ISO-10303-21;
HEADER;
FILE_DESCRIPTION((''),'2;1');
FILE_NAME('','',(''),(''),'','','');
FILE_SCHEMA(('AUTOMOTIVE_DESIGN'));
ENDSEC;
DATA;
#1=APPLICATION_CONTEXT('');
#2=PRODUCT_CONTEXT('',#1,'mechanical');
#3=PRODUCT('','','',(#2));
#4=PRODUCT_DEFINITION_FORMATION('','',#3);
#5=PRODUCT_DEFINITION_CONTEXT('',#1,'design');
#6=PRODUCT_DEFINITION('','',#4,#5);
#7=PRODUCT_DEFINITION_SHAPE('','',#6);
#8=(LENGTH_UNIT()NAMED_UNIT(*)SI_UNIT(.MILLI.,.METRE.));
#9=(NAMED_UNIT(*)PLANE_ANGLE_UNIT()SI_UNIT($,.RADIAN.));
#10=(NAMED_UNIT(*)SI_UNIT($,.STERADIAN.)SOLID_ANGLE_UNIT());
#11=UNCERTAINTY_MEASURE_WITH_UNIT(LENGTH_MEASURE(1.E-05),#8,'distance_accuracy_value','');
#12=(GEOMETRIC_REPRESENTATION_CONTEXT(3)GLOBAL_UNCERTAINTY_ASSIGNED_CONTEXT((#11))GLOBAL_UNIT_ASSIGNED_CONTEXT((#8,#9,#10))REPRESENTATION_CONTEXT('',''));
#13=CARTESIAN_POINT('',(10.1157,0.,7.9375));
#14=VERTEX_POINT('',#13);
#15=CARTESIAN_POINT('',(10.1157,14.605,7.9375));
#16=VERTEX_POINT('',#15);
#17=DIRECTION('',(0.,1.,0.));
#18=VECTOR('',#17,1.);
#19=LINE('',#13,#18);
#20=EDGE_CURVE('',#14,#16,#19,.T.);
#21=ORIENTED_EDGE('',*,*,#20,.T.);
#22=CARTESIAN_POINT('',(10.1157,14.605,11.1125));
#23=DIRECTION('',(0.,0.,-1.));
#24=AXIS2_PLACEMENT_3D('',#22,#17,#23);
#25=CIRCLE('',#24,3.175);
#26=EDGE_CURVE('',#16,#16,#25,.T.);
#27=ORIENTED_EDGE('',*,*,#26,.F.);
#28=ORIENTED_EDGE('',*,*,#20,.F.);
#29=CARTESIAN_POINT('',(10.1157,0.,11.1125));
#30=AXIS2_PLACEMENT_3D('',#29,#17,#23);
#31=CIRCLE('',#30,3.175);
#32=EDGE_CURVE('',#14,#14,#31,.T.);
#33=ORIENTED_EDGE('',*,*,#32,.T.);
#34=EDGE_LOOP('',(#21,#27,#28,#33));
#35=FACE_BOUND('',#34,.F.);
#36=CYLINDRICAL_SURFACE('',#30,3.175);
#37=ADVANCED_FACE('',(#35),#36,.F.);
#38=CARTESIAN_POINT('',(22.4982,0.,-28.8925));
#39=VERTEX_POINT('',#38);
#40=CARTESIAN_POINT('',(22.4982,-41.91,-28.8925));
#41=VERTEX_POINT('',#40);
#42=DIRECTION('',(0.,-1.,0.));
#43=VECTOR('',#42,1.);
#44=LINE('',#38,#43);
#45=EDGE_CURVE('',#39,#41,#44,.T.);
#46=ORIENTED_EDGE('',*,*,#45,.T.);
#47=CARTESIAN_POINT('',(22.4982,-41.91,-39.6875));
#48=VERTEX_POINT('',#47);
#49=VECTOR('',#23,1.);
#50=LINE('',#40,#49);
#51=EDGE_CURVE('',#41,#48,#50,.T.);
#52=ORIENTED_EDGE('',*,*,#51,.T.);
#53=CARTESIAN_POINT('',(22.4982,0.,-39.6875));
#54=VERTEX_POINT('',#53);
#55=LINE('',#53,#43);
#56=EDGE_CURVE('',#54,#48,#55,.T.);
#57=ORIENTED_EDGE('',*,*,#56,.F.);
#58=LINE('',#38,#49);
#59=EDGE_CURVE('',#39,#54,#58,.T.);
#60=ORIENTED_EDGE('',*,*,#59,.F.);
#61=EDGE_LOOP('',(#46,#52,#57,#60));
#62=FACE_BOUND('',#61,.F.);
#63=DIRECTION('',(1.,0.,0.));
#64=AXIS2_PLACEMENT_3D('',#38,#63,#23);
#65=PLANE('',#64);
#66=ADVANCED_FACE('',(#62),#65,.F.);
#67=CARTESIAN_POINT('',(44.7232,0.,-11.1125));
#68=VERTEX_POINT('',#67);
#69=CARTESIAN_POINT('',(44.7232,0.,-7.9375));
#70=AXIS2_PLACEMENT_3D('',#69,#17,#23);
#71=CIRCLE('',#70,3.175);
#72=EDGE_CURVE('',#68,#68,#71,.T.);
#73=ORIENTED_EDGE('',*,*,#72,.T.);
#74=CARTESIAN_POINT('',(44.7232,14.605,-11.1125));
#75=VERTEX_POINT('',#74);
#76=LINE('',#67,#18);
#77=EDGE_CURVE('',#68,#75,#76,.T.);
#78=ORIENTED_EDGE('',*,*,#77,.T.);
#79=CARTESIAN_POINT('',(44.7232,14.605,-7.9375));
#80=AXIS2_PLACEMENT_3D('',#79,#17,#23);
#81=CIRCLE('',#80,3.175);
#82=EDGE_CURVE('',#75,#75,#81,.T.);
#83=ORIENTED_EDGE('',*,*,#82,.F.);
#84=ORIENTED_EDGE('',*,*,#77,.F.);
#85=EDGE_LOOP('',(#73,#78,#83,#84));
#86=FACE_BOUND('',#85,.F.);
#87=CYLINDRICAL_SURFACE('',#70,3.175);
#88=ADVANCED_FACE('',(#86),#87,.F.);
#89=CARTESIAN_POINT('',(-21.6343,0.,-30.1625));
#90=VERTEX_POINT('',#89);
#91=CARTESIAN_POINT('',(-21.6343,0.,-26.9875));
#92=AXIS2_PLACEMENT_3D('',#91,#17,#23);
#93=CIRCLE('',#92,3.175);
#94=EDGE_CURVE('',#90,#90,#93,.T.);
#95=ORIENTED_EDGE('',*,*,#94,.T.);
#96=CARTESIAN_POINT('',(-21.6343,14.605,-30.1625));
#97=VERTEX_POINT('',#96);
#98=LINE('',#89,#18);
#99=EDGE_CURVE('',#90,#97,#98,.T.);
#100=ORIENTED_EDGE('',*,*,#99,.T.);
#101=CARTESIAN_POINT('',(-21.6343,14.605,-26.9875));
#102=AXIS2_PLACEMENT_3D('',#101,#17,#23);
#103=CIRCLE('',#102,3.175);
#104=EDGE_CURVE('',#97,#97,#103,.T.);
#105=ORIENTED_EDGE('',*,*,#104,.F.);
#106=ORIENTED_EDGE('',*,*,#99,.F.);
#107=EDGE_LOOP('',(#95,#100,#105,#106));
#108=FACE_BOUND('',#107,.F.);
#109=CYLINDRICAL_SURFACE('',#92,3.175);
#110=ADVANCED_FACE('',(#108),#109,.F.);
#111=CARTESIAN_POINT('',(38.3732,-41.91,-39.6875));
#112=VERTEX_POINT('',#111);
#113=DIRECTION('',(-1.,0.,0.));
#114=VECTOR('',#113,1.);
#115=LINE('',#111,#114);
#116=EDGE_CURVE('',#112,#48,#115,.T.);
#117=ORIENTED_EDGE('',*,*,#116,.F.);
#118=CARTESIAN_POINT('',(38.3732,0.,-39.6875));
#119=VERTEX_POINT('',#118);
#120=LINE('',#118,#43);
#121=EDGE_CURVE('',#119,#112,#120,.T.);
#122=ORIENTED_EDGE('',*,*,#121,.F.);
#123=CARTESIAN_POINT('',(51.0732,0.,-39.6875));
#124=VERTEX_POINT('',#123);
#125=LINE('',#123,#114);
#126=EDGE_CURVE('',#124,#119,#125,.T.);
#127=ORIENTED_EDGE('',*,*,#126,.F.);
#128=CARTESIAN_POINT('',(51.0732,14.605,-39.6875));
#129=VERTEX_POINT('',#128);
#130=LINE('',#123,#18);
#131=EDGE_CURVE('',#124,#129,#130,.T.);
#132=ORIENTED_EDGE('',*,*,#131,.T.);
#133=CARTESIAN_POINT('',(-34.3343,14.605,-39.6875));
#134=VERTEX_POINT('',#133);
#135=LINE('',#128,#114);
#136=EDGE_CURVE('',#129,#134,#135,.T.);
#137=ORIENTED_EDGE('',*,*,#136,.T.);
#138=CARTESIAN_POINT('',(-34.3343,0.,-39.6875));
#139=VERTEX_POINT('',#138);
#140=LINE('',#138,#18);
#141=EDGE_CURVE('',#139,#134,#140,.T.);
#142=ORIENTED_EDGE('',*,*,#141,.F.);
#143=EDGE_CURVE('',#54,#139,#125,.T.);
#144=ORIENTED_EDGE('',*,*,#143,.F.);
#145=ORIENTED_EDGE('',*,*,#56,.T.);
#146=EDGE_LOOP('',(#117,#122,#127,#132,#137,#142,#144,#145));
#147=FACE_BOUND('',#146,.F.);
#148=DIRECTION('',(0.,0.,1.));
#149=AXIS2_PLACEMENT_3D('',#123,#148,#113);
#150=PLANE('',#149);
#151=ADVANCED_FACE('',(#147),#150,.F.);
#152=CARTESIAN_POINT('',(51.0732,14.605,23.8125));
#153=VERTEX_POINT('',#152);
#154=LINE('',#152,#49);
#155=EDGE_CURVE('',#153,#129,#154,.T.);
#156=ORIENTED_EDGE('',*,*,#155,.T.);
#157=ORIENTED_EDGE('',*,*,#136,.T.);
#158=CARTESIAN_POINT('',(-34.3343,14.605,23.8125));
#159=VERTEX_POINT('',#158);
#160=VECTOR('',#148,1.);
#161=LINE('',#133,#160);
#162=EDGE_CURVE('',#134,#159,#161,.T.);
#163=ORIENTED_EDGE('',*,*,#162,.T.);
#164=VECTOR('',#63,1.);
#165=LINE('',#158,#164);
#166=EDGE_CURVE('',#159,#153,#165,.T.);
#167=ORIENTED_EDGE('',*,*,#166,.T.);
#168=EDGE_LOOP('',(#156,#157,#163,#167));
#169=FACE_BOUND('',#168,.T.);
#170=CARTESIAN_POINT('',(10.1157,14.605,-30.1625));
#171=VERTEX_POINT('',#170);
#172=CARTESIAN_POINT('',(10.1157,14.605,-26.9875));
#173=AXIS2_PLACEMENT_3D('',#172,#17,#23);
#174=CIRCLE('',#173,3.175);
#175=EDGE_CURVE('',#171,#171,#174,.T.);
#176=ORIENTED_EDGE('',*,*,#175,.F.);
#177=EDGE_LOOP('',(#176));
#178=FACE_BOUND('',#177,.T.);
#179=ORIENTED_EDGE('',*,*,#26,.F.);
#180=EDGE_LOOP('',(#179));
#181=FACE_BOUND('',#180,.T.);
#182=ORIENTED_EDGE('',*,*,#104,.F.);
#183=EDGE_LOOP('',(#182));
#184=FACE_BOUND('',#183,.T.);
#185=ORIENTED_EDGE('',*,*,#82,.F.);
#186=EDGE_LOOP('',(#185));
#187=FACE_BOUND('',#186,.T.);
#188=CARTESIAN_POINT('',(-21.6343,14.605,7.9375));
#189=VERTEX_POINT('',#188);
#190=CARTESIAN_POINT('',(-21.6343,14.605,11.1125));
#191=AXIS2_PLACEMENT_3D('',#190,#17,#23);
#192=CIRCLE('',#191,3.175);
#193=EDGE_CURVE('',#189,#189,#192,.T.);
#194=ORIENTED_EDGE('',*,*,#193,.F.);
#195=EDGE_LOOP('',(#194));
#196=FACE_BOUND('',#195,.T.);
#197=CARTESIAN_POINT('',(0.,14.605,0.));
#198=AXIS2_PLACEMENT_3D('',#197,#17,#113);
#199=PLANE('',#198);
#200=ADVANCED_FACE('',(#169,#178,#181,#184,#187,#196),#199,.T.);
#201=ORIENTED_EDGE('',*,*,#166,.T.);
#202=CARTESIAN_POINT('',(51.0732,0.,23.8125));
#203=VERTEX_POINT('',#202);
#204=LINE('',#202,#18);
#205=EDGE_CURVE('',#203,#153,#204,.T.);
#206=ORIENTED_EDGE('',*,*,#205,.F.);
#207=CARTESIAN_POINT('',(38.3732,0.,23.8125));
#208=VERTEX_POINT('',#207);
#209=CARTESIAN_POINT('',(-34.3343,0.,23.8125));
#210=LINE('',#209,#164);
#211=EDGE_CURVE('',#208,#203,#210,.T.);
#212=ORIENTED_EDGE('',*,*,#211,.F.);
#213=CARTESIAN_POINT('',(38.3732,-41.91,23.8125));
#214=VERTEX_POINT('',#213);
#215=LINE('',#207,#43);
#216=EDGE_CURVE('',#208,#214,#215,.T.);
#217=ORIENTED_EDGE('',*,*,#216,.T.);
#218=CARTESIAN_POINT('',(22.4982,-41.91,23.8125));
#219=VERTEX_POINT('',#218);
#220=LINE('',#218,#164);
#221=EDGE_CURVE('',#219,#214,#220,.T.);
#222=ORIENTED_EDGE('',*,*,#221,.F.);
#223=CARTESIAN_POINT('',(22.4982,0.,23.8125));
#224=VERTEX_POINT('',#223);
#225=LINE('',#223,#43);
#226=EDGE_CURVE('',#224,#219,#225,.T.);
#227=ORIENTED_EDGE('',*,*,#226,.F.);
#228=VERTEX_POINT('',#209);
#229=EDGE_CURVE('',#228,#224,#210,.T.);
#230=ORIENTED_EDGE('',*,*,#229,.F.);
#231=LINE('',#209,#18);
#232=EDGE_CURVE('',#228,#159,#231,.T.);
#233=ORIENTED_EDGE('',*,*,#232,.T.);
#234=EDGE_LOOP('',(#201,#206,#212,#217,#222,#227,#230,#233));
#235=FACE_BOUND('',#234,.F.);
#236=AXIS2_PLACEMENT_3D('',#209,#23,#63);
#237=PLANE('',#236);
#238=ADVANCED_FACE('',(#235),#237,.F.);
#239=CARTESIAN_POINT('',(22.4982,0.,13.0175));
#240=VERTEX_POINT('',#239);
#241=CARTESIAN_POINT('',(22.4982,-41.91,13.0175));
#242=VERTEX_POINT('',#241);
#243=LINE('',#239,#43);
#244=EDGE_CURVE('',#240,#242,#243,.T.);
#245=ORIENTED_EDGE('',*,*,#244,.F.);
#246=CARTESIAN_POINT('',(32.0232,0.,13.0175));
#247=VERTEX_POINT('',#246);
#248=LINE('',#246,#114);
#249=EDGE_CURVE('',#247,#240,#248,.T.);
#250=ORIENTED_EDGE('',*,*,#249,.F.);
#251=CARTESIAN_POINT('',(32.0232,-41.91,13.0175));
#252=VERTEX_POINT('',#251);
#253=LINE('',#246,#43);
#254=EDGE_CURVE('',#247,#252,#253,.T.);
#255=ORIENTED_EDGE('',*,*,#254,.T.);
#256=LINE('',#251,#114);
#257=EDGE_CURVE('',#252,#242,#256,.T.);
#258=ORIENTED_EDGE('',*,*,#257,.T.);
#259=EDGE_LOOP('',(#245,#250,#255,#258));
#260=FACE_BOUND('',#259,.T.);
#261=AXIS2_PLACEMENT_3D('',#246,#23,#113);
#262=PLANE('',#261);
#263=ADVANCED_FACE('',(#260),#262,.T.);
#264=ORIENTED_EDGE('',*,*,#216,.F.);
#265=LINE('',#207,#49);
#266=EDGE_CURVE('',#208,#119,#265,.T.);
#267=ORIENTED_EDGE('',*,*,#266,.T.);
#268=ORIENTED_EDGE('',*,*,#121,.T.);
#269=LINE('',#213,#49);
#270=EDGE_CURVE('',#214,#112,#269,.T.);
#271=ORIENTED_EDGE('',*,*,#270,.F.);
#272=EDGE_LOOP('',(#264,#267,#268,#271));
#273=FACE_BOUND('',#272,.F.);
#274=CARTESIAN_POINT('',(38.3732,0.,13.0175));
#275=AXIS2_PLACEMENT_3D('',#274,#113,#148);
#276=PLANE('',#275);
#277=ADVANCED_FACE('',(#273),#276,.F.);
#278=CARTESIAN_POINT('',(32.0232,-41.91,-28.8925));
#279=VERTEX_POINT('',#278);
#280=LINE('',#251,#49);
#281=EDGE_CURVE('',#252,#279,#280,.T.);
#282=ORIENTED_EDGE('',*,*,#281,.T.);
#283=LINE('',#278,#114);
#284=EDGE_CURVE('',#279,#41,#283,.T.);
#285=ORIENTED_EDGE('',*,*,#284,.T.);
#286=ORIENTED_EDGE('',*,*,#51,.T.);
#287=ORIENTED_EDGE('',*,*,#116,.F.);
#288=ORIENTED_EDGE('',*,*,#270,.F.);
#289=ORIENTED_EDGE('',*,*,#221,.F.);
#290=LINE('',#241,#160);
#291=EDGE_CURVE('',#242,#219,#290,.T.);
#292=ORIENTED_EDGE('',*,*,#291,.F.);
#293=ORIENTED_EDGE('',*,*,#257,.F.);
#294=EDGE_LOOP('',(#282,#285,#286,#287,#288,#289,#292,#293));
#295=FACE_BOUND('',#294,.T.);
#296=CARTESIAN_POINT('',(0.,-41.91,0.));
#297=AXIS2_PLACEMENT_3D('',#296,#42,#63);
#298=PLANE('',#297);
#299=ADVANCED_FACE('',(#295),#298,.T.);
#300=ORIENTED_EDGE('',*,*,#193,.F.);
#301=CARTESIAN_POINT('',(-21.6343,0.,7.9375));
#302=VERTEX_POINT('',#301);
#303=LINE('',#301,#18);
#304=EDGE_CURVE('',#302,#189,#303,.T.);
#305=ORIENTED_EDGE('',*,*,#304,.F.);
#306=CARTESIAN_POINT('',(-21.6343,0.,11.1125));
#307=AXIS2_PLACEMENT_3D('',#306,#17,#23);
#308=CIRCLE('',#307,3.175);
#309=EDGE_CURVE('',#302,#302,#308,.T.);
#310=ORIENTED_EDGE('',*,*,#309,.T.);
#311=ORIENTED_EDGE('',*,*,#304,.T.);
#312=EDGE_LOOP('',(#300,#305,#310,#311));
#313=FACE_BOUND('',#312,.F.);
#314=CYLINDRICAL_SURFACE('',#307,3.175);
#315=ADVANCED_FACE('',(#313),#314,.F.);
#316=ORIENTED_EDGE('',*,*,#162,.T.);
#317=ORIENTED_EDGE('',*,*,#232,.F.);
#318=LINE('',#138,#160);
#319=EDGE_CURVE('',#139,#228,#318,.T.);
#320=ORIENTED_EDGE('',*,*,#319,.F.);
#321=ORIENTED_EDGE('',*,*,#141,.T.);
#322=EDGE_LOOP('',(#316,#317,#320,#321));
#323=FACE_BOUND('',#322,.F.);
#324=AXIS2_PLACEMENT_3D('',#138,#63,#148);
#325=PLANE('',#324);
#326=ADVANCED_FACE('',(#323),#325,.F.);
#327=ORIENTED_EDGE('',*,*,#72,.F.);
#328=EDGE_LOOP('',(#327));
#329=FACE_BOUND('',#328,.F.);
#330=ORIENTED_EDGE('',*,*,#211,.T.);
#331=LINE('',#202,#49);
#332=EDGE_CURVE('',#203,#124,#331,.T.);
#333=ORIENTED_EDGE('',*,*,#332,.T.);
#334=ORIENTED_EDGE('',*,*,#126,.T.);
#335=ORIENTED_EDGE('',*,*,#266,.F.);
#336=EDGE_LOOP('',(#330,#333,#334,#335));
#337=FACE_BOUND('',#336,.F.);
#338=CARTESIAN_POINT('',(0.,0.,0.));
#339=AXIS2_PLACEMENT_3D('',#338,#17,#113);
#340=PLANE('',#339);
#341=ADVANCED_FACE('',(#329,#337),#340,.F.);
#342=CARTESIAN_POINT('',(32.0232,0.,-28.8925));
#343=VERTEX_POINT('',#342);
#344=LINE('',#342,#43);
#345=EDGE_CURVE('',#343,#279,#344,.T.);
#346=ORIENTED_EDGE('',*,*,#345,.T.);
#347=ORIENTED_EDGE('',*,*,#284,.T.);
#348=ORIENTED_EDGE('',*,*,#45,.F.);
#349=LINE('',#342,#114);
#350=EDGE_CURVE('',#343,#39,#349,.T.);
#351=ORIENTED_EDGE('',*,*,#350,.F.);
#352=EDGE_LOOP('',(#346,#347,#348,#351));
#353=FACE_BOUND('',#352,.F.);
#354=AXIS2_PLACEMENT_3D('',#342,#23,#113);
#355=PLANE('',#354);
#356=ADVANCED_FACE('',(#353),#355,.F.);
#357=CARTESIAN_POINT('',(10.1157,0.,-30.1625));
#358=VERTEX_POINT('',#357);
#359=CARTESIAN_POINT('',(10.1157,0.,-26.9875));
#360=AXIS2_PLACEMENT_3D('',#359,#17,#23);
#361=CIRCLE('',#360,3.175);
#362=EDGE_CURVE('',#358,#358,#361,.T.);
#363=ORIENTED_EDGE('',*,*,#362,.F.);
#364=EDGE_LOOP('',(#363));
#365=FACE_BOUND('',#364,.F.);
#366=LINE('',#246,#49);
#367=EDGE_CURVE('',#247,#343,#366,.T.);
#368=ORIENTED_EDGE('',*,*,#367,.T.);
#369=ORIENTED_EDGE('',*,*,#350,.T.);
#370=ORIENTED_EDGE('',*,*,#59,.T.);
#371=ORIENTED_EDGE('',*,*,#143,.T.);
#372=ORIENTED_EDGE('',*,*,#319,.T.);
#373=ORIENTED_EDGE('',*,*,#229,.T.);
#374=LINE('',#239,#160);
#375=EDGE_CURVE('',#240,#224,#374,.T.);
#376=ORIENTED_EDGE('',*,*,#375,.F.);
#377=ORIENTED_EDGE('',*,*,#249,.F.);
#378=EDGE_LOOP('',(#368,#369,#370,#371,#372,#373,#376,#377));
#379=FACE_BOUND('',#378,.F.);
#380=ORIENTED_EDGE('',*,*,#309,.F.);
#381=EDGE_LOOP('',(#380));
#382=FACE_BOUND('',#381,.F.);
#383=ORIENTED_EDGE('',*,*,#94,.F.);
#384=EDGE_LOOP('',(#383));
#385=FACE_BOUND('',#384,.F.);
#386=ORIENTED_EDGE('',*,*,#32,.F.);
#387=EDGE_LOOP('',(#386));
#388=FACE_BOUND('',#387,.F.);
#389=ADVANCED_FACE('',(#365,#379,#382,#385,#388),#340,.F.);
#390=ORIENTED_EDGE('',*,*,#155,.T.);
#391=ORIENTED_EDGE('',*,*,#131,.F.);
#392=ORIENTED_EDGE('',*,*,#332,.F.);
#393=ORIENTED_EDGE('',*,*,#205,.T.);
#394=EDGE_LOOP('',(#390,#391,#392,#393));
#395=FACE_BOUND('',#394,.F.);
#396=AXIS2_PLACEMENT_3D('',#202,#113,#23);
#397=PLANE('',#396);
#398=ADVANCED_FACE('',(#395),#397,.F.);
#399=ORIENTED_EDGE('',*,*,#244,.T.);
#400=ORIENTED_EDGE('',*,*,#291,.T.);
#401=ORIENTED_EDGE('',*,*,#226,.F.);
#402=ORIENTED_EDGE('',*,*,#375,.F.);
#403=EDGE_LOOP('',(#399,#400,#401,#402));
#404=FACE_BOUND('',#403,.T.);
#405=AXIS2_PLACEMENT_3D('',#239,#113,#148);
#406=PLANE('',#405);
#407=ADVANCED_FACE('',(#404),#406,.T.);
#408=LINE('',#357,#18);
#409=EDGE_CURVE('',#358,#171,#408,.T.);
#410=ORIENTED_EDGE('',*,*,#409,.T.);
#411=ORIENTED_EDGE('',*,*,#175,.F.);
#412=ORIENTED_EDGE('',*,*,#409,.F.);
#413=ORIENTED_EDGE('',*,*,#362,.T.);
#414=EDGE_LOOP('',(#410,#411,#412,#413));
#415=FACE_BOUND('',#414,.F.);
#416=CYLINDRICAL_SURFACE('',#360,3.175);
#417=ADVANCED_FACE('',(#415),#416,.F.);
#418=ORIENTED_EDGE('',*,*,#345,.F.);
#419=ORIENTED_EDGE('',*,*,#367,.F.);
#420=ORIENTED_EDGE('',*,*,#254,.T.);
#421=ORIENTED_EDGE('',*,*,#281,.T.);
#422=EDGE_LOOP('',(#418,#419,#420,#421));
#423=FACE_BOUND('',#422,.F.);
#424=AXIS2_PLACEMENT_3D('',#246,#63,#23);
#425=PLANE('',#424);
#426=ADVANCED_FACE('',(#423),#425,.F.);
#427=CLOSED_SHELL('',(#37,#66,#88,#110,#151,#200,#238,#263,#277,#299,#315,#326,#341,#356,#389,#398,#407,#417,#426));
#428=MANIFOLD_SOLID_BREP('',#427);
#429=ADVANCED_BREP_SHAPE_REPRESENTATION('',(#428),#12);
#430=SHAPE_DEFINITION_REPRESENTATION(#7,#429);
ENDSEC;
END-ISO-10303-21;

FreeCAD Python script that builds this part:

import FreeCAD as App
import Part
import Sketcher
Q = App.Units.Quantity

doc = App.newDocument("Part")
body = doc.addObject("PartDesign::Body", "Body")

# Sketch on XZ plane
sketch1 = body.newObject("Sketcher::SketchObject", "Sketch")
sketch1.AttachmentSupport = (doc.getObject("XZ_Plane"), [""])
sketch1.MapMode = "FlatFace"
sketch1.addGeometry([
    Part.LineSegment(App.Vector(-34, -40, 0), App.Vector(-34, 24, 0)),
    Part.LineSegment(App.Vector(-34, 24, 0), App.Vector(51, 24, 0)),
    Part.LineSegment(App.Vector(51, 24, 0), App.Vector(51, -40, 0)),
    Part.LineSegment(App.Vector(51, -40, 0), App.Vector(-34, -40, 0)),
], False)
sketch1.addConstraint([
    Sketcher.Constraint("Coincident", 0, 2, 1, 1),
    Sketcher.Constraint("Coincident", 1, 2, 2, 1),
    Sketcher.Constraint("Coincident", 2, 2, 3, 1),
    Sketcher.Constraint("Coincident", 3, 2, 0, 1),
    Sketcher.Constraint("Vertical", 0),
    Sketcher.Constraint("Horizontal", 1),
    Sketcher.Constraint("Vertical", 2),
    Sketcher.Constraint("Horizontal", 3),
    Sketcher.Constraint("DistanceY", 0, 1, 0, 2, Q("2.5 in")),
    Sketcher.Constraint("DistanceX", 1, 1, 1, 2, Q("3.3625 in")),
    Sketcher.Constraint("DistanceY", -1, 1, 0, 2, Q("0.9375 in")),
    Sketcher.Constraint("DistanceX", 0, 2, -1, 1, Q("34.3343 mm")),
])
pad1 = body.newObject("PartDesign::Pad", "Pad")
pad1.Profile = sketch1
pad1.Length = Q("0.575 in")
pad1.Reversed = True

# Sketch on XZ plane
sketch2 = body.newObject("Sketcher::SketchObject", "Sketch001")
sketch2.AttachmentSupport = (doc.getObject("XZ_Plane"), [""])
sketch2.MapMode = "FlatFace"
sketch2.addGeometry([
    Part.LineSegment(App.Vector(38, 24, 0), App.Vector(22, 24, 0)),  # 0
    Part.LineSegment(App.Vector(22, 24, 0), App.Vector(22, 13, 0)),  # 1
    Part.LineSegment(App.Vector(22, 13, 0), App.Vector(32, 13, 0)),  # 2
    Part.LineSegment(App.Vector(32, 13, 0), App.Vector(32, -29, 0)),  # 3
    Part.LineSegment(App.Vector(32, -29, 0), App.Vector(22, -29, 0)),  # 4
    Part.LineSegment(App.Vector(22, -29, 0), App.Vector(22, -40, 0)),  # 5
    Part.LineSegment(App.Vector(22, -40, 0), App.Vector(38, -40, 0)),  # 6
    Part.LineSegment(App.Vector(38, -40, 0), App.Vector(38, 24, 0)),  # 7
], False)
sketch2.addConstraint([
    Sketcher.Constraint("Coincident", 0, 2, 1, 1),
    Sketcher.Constraint("Coincident", 1, 2, 2, 1),
    Sketcher.Constraint("Coincident", 2, 2, 3, 1),
    Sketcher.Constraint("Coincident", 3, 2, 4, 1),
    Sketcher.Constraint("Coincident", 4, 2, 5, 1),
    Sketcher.Constraint("Coincident", 5, 2, 6, 1),
    Sketcher.Constraint("Coincident", 6, 2, 7, 1),
    Sketcher.Constraint("Coincident", 7, 2, 0, 1),
    Sketcher.Constraint("Horizontal", 0),
    Sketcher.Constraint("Vertical", 1),
    Sketcher.Constraint("Horizontal", 2),
    Sketcher.Constraint("Vertical", 3),
    Sketcher.Constraint("Horizontal", 4),
    Sketcher.Constraint("Vertical", 5),
    Sketcher.Constraint("Horizontal", 6),
    Sketcher.Constraint("Vertical", 7),
    Sketcher.Constraint("Vertical", 1, 2, 4, 2),
    Sketcher.Constraint("Equal", 1, 5),
    Sketcher.Constraint("DistanceY", 7, 1, 7, 2, Q("2.5 in")),
    Sketcher.Constraint("DistanceX", 0, 2, 0, 1, Q("0.625 in")),
    Sketcher.Constraint("DistanceY", 1, 2, 1, 1, Q("0.425 in")),
    Sketcher.Constraint("DistanceX", 3, 2, 6, 2, Q("0.25 in")),
    Sketcher.Constraint("DistanceY", -1, 1, 0, 2, Q("0.9375 in")),
    Sketcher.Constraint("DistanceX", -1, 1, 0, 2, Q("22.4982 mm")),
])
pad2 = body.newObject("PartDesign::Pad", "Pad001")
pad2.Profile = sketch2
pad2.Length = Q("1.65 in")

# Sketch on XZ plane
sketch3 = body.newObject("Sketcher::SketchObject", "Sketch002")
sketch3.AttachmentSupport = (doc.getObject("XZ_Plane"), [""])
sketch3.MapMode = "FlatFace"
sketch3.addGeometry([
    Part.Circle(App.Vector(-21.6, -27, 0), App.Vector(0, 0, 1), 3.2),
    Part.Circle(App.Vector(-21.6, 11.1, 0), App.Vector(0, 0, 1), 3.2),
    Part.Circle(App.Vector(10.1, 11.1, 0), App.Vector(0, 0, 1), 3.2),
    Part.Circle(App.Vector(10.1, -27, 0), App.Vector(0, 0, 1), 3.2),
], False)
sketch3.addConstraint([
    Sketcher.Constraint("Equal", 0, 1),
    Sketcher.Constraint("Equal", 1, 2),
    Sketcher.Constraint("Equal", 2, 3),
    Sketcher.Constraint("Horizontal", 1, 3, 2, 3),
    Sketcher.Constraint("Horizontal", 0, 3, 3, 3),
    Sketcher.Constraint("Vertical", 0, 3, 1, 3),
    Sketcher.Constraint("Vertical", 2, 3, 3, 3),
    Sketcher.Constraint("Diameter", 0, Q("0.25 in")),
    Sketcher.Constraint("DistanceY", 0, 3, 1, 3, Q("1.5 in")),
    Sketcher.Constraint("DistanceX", 1, 3, 2, 3, Q("1.25 in")),
    Sketcher.Constraint("DistanceY", 0, 3, -1, 1, Q("1.0625 in")),
    Sketcher.Constraint("DistanceX", 0, 3, -1, 1, Q("21.6343 mm")),
])
doc.recompute()
hole = body.newObject("PartDesign::Hole", "Hole")
hole.Profile = sketch3
hole.ThreadType = "None"
hole.Diameter = Q("0.25 in")
hole.DepthType = "ThroughAll"

# Sketch on XZ plane
sketch4 = body.newObject("Sketcher::SketchObject", "Sketch003")
sketch4.AttachmentSupport = (doc.getObject("XZ_Plane"), [""])
sketch4.MapMode = "FlatFace"
sketch4.addGeometry(Part.Circle(App.Vector(44.7, -7.9, 0), App.Vector(0, 0, 1), 3.2), False)
sketch4.addConstraint([
    Sketcher.Constraint("Diameter", 0, Q("0.25 in")),
    Sketcher.Constraint("DistanceY", 0, 3, -1, 1, Q("0.3125 in")),
    Sketcher.Constraint("DistanceX", -1, 1, 0, 3, Q("44.7232 mm")),
])
doc.recompute()
hole2 = body.newObject("PartDesign::Hole", "Hole001")
hole2.Profile = sketch4
hole2.ThreadType = "None"
hole2.Diameter = Q("0.25 in")
hole2.DepthType = "ThroughAll"

doc.recompute()
